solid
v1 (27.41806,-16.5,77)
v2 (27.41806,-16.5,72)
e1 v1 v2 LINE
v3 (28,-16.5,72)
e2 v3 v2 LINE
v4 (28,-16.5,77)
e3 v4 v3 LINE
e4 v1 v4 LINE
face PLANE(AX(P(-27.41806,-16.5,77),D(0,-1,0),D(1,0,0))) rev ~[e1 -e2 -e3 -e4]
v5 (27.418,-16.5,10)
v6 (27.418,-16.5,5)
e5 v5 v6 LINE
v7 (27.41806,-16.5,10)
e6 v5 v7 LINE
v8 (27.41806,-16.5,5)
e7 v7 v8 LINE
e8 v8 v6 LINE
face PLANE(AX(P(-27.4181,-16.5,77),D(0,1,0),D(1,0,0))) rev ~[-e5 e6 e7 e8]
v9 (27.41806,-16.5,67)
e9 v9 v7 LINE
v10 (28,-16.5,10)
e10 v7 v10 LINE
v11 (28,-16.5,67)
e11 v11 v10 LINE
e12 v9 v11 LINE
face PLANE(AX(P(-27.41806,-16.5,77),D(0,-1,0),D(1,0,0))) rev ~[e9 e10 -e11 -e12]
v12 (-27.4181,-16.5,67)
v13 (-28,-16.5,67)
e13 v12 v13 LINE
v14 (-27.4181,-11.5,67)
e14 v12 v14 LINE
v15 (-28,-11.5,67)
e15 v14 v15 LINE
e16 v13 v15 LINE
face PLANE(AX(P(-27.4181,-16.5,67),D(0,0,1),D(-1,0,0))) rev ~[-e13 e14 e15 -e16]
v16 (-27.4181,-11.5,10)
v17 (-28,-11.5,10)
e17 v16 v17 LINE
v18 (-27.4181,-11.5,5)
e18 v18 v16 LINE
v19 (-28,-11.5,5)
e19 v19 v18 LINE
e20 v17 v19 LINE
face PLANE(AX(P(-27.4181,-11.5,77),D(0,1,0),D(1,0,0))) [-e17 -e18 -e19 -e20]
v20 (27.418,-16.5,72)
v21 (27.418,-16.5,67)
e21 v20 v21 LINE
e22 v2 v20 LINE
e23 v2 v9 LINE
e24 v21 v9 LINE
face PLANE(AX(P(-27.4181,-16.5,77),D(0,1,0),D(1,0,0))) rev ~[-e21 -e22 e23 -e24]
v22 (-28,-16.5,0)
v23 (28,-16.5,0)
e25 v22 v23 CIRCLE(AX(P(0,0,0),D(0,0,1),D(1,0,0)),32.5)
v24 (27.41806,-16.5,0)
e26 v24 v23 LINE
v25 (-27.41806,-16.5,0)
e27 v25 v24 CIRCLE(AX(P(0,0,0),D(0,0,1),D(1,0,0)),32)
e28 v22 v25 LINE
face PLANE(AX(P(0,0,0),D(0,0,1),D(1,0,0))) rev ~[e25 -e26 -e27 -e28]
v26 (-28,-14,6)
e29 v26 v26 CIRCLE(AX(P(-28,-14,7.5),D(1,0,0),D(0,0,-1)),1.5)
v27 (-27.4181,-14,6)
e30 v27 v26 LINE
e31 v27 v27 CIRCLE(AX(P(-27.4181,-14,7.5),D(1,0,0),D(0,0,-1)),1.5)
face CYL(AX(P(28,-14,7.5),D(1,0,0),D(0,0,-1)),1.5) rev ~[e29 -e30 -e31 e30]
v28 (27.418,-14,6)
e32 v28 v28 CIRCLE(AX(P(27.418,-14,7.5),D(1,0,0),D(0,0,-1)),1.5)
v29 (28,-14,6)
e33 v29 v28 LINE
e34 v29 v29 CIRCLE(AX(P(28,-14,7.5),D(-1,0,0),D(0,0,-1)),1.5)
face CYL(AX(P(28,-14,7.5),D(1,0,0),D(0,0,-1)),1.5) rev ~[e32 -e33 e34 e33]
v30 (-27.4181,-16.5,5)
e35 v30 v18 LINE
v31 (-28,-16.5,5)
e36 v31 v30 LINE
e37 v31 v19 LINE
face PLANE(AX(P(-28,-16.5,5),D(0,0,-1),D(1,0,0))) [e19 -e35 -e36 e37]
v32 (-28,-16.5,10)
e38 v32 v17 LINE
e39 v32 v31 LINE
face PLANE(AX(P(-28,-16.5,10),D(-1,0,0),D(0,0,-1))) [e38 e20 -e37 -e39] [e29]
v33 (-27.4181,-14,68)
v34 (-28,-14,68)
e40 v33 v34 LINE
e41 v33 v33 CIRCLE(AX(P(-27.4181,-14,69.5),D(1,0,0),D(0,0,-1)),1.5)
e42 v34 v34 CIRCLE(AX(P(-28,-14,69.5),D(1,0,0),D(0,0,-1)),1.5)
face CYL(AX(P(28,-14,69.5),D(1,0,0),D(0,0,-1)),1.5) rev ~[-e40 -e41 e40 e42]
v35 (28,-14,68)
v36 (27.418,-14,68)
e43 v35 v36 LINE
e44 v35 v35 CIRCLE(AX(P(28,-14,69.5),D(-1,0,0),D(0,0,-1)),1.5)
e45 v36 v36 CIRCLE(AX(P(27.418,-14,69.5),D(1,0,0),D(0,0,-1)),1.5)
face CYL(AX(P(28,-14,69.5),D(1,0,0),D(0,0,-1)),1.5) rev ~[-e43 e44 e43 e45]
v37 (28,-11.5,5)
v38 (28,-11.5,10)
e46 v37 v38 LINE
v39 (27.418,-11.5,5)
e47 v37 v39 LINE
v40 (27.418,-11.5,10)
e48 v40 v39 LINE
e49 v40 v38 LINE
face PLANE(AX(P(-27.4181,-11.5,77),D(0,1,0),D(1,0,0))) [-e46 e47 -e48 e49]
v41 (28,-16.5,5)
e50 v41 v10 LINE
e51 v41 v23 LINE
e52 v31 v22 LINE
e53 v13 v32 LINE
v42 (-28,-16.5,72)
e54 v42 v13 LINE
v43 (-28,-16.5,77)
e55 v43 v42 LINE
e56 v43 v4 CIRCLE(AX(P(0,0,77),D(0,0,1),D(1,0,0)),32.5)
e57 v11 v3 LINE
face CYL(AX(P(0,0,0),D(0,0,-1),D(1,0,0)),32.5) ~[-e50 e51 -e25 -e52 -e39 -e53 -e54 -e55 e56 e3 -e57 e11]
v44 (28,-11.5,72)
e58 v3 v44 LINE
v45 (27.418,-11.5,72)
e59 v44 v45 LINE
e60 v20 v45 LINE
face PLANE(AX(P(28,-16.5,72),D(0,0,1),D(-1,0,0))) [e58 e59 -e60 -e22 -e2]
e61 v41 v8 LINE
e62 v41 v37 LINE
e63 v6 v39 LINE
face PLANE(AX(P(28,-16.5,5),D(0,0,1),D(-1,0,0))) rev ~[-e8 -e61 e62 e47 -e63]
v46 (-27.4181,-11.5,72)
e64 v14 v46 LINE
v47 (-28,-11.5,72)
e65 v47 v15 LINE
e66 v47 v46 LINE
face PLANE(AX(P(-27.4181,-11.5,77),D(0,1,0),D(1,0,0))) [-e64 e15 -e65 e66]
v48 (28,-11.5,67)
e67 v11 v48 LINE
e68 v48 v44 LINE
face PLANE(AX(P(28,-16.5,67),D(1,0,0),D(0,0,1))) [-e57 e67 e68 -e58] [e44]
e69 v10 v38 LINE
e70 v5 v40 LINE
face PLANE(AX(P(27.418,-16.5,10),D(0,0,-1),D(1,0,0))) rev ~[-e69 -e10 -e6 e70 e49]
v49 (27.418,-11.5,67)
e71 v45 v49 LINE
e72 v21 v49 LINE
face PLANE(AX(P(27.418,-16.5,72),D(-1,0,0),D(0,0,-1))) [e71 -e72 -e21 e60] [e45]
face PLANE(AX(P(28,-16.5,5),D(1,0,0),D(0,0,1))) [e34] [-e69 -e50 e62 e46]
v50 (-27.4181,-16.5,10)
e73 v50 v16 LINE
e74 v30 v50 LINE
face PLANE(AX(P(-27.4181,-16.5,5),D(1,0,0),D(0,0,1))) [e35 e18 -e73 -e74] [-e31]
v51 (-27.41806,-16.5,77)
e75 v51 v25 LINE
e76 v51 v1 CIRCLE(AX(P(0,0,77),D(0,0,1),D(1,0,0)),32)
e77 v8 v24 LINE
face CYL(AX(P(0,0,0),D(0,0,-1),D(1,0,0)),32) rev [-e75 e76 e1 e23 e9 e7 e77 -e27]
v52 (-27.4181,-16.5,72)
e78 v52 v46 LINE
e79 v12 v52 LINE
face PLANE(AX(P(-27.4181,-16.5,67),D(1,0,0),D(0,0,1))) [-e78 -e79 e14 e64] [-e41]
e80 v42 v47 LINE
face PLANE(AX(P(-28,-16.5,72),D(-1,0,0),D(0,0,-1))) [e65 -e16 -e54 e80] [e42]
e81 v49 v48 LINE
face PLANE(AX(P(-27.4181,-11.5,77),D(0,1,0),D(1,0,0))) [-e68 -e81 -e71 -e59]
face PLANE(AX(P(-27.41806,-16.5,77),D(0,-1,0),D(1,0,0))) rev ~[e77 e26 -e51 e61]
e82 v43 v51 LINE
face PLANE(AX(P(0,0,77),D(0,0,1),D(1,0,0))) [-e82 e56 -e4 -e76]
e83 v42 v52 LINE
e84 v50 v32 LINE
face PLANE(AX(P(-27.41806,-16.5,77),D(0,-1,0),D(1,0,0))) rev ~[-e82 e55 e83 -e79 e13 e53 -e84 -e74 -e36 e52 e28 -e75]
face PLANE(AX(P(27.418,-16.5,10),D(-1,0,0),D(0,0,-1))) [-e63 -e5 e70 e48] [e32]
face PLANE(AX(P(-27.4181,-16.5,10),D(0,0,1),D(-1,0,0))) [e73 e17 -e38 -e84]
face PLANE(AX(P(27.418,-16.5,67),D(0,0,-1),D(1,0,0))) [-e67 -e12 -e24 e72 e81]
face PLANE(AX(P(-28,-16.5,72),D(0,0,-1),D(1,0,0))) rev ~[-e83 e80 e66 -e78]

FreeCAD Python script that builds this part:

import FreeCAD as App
import Part
import Sketcher
from FreeCAD import Vector

doc = App.newDocument("Part")
params = doc.addObject("Spreadsheet::Sheet", "Params")
for row, (alias, value) in enumerate([
    ("sketch1_diameter", "65 mm"),
    ("sketch1_diameter2", "64 mm"),
    ("pad1_length", "77 mm"),
    ("sketch2_length", "29.49 mm"),
    ("sketch2_length2", "20.66 mm"),
    ("pocket1_length", "77 mm"),
    ("sketch3_height", "5 mm"),
    ("pad2_length", "5 mm"),
    ("sketch4_diameter", "3 mm"),
    ("pocket2_length", "56 mm"),
], start=1):
    params.set(f"A{row}", alias)
    params.set(f"B{row}", "=" + value)
    params.setAlias(f"B{row}", alias)

body = doc.addObject("PartDesign::Body", "Body")

# Sketch on XY plane
sketch1 = body.newObject("Sketcher::SketchObject", "Sketch")
sketch1.AttachmentSupport = (doc.getObject("XY_Plane"), [""])
sketch1.MapMode = "FlatFace"
sketch1.addGeometry(Part.Circle(Vector(0, 0, 0), Vector(0, 0, 1), 32), False)
sketch1.addGeometry(Part.Circle(Vector(0, 0, 0), Vector(0, 0, 1), 32), False)
sketch1.addConstraint(Sketcher.Constraint("Coincident", 0, 3, -1, 1))
sketch1.addConstraint(Sketcher.Constraint("Coincident", 1, 3, -1, 1))
sketch1.addConstraint(Sketcher.Constraint("Diameter", 0, 65.0))
sketch1.addConstraint(Sketcher.Constraint("Diameter", 1, 64.0))
sketch1.setExpression("Constraints[2]", "Params.sketch1_diameter")
sketch1.setExpression("Constraints[3]", "Params.sketch1_diameter2")
pad1 = body.newObject("PartDesign::Pad", "Pad")
pad1.Profile = sketch1
pad1.setExpression("Length", "Params.pad1_length")

# Sketch on XY plane
sketch2 = body.newObject("Sketcher::SketchObject", "Sketch001")
sketch2.AttachmentSupport = (doc.getObject("XY_Plane"), [""])
sketch2.MapMode = "FlatFace"
sketch2.AttachmentOffset = App.Placement(Vector(0, 0, 77), App.Rotation())
sketch2.addGeometry(Part.LineSegment(Vector(28, -16, 0), Vector(53, -1, 0)), False)
sketch2.addGeometry(Part.LineSegment(Vector(53, -1, 0), Vector(27, 45, 0)), False)
sketch2.addGeometry(Part.LineSegment(Vector(27, 45, 0), Vector(-32, 42, 0)), False)
sketch2.addGeometry(Part.LineSegment(Vector(-32, 42, 0), Vector(-49, -14, 0)), False)
sketch2.addGeometry(Part.LineSegment(Vector(-49, -14, 0), Vector(-28, -16, 0)), False)
sketch2.addGeometry(Part.LineSegment(Vector(-28, -16, 0), Vector(28, -16, 0)), False)
sketch2.addConstraint(Sketcher.Constraint("Coincident", 0, 2, 1, 1))
sketch2.addConstraint(Sketcher.Constraint("Coincident", 1, 2, 2, 1))
sketch2.addConstraint(Sketcher.Constraint("Coincident", 2, 2, 3, 1))
sketch2.addConstraint(Sketcher.Constraint("Coincident", 3, 2, 4, 1))
sketch2.addConstraint(Sketcher.Constraint("Coincident", 4, 2, 5, 1))
sketch2.addConstraint(Sketcher.Constraint("Coincident", 5, 2, 0, 1))
sketch2.addConstraint(Sketcher.Constraint("Horizontal", 5))
sketch2.addConstraint(Sketcher.Constraint("DistanceX", 4, 2, -1, 1, 28.0))
sketch2.addConstraint(Sketcher.Constraint("DistanceX", -1, 1, 5, 2, 28.0))
sketch2.addConstraint(Sketcher.Constraint("DistanceY", 4, 2, -1, 1, 16.5))
sketch2.addConstraint(Sketcher.Constraint("Distance", 0, 29.49))
sketch2.addConstraint(Sketcher.Constraint("Distance", 4, 20.66))
sketch2.addConstraint(Sketcher.Constraint("DistanceX", -1, 1, 1, 2, 26.703))
sketch2.addConstraint(Sketcher.Constraint("DistanceY", -1, 1, 2, 2, 42.367))
sketch2.addConstraint(Sketcher.Constraint("DistanceX", 3, 2, 2, 2, 16.797))
sketch2.addConstraint(Sketcher.Constraint("DistanceY", 3, 2, 1, 2, 58.961))
sketch2.addConstraint(Sketcher.Constraint("Distance", 1, 52.6383))
sketch2.addConstraint(Sketcher.Constraint("Distance", 2, 58.4708))
sketch2.setExpression("Constraints[10]", "Params.sketch2_length")
sketch2.setExpression("Constraints[11]", "Params.sketch2_length2")
pocket1 = body.newObject("PartDesign::Pocket", "Pocket")
pocket1.Profile = sketch2
pocket1.setExpression("Length", "Params.pocket1_length")

# Sketch on XZ plane
sketch3 = body.newObject("Sketcher::SketchObject", "Sketch002")
sketch3.AttachmentSupport = (doc.getObject("XZ_Plane"), [""])
sketch3.MapMode = "FlatFace"
sketch3.AttachmentOffset = App.Placement(Vector(0, 0, 16.5), App.Rotation())
sketch3.addGeometry(Part.LineSegment(Vector(-28, 67, 0), Vector(-28, 72, 0)), False)
sketch3.addGeometry(Part.LineSegment(Vector(-28, 72, 0), Vector(-27.4, 72, 0)), False)
sketch3.addGeometry(Part.LineSegment(Vector(-27.4, 72, 0), Vector(-27.4, 67, 0)), False)
sketch3.addGeometry(Part.LineSegment(Vector(-27.4, 67, 0), Vector(-28, 67, 0)), False)
sketch3.addGeometry(Part.LineSegment(Vector(27.4, 67, 0), Vector(27.4, 72, 0)), False)
sketch3.addGeometry(Part.LineSegment(Vector(27.4, 72, 0), Vector(28, 72, 0)), False)
sketch3.addGeometry(Part.LineSegment(Vector(28, 72, 0), Vector(28, 67, 0)), False)
sketch3.addGeometry(Part.LineSegment(Vector(28, 67, 0), Vector(27.4, 67, 0)), False)
sketch3.addGeometry(Part.LineSegment(Vector(-28, 5, 0), Vector(-28, 10, 0)), False)
sketch3.addGeometry(Part.LineSegment(Vector(-28, 10, 0), Vector(-27.4, 10, 0)), False)
sketch3.addGeometry(Part.LineSegment(Vector(-27.4, 10, 0), Vector(-27.4, 5, 0)), False)
sketch3.addGeometry(Part.LineSegment(Vector(-27.4, 5, 0), Vector(-28, 5, 0)), False)
sketch3.addGeometry(Part.LineSegment(Vector(27.4, 5, 0), Vector(27.4, 10, 0)), False)
sketch3.addGeometry(Part.LineSegment(Vector(27.4, 10, 0), Vector(28, 10, 0)), False)
sketch3.addGeometry(Part.LineSegment(Vector(28, 10, 0), Vector(28, 5, 0)), False)
sketch3.addGeometry(Part.LineSegment(Vector(28, 5, 0), Vector(27.4, 5, 0)), False)
sketch3.addConstraint(Sketcher.Constraint("Coincident", 0, 2, 1, 1))
sketch3.addConstraint(Sketcher.Constraint("Coincident", 1, 2, 2, 1))
sketch3.addConstraint(Sketcher.Constraint("Coincident", 2, 2, 3, 1))
sketch3.addConstraint(Sketcher.Constraint("Coincident", 3, 2, 0, 1))
sketch3.addConstraint(Sketcher.Constraint("Coincident", 4, 2, 5, 1))
sketch3.addConstraint(Sketcher.Constraint("Coincident", 5, 2, 6, 1))
sketch3.addConstraint(Sketcher.Constraint("Coincident", 6, 2, 7, 1))
sketch3.addConstraint(Sketcher.Constraint("Coincident", 7, 2, 4, 1))
sketch3.addConstraint(Sketcher.Constraint("Coincident", 8, 2, 9, 1))
sketch3.addConstraint(Sketcher.Constraint("Coincident", 9, 2, 10, 1))
sketch3.addConstraint(Sketcher.Constraint("Coincident", 10, 2, 11, 1))
sketch3.addConstraint(Sketcher.Constraint("Coincident", 11, 2, 8, 1))
sketch3.addConstraint(Sketcher.Constraint("Coincident", 12, 2, 13, 1))
sketch3.addConstraint(Sketcher.Constraint("Coincident", 13, 2, 14, 1))
sketch3.addConstraint(Sketcher.Constraint("Coincident", 14, 2, 15, 1))
sketch3.addConstraint(Sketcher.Constraint("Coincident", 15, 2, 12, 1))
sketch3.addConstraint(Sketcher.Constraint("Vertical", 0))
sketch3.addConstraint(Sketcher.Constraint("Horizontal", 1))
sketch3.addConstraint(Sketcher.Constraint("Vertical", 2))
sketch3.addConstraint(Sketcher.Constraint("Horizontal", 3))
sketch3.addConstraint(Sketcher.Constraint("Vertical", 4))
sketch3.addConstraint(Sketcher.Constraint("Horizontal", 5))
sketch3.addConstraint(Sketcher.Constraint("Vertical", 6))
sketch3.addConstraint(Sketcher.Constraint("Horizontal", 7))
sketch3.addConstraint(Sketcher.Constraint("Vertical", 8))
sketch3.addConstraint(Sketcher.Constraint("Horizontal", 9))
sketch3.addConstraint(Sketcher.Constraint("Vertical", 10))
sketch3.addConstraint(Sketcher.Constraint("Horizontal", 11))
sketch3.addConstraint(Sketcher.Constraint("Vertical", 12))
sketch3.addConstraint(Sketcher.Constraint("Horizontal", 13))
sketch3.addConstraint(Sketcher.Constraint("Vertical", 14))
sketch3.addConstraint(Sketcher.Constraint("Horizontal", 15))
sketch3.addConstraint(Sketcher.Constraint("Symmetric", 1, 2, 4, 2, -2))
sketch3.addConstraint(Sketcher.Constraint("Symmetric", 3, 2, 6, 2, -2))
sketch3.addConstraint(Sketcher.Constraint("Symmetric", 9, 2, 12, 2, -2))
sketch3.addConstraint(Sketcher.Constraint("Symmetric", 11, 2, 14, 2, -2))
sketch3.addConstraint(Sketcher.Constraint("Vertical", 3, 2, 8, 2))
sketch3.addConstraint(Sketcher.Constraint("Vertical", 2, 2, 9, 2))
sketch3.addConstraint(Sketcher.Constraint("Equal", 6, 8))
sketch3.addConstraint(Sketcher.Constraint("DistanceY", 0, 1, 0, 2, 5.0))
sketch3.addConstraint(Sketcher.Constraint("DistanceY", -1, 1, 10, 2, 5.0))
sketch3.addConstraint(Sketcher.Constraint("DistanceX", 0, 2, -1, 1, 28.0))
sketch3.addConstraint(Sketcher.Constraint("DistanceY", -1, 1, 0, 2, 72.0))
sketch3.addConstraint(Sketcher.Constraint("DistanceX", 1, 1, 1, 2, 0.582))
sketch3.setExpression("Constraints[39]", "Params.sketch3_height")
pad2 = body.newObject("PartDesign::Pad", "Pad001")
pad2.Profile = sketch3
pad2.setExpression("Length", "Params.pad2_length")
pad2.Reversed = True

# Sketch on YZ plane
sketch4 = body.newObject("Sketcher::SketchObject", "Sketch003")
sketch4.AttachmentSupport = (doc.getObject("YZ_Plane"), [""])
sketch4.MapMode = "FlatFace"
sketch4.AttachmentOffset = App.Placement(Vector(0, 0, 28), App.Rotation())
sketch4.addGeometry(Part.Circle(Vector(-14, 7.5, 0), Vector(0, 0, 1), 1.5), False)
sketch4.addGeometry(Part.Circle(Vector(-14, 69.5, 0), Vector(0, 0, 1), 1.5), False)
sketch4.addConstraint(Sketcher.Constraint("Equal", 0, 1))
sketch4.addConstraint(Sketcher.Constraint("Vertical", 0, 3, 1, 3))
sketch4.addConstraint(Sketcher.Constraint("Diameter", 0, 3.0))
sketch4.addConstraint(Sketcher.Constraint("DistanceX", 0, 3, -1, 1, 14.0))
sketch4.addConstraint(Sketcher.Constraint("DistanceY", 0, 3, 1, 3, 62.0))
sketch4.addConstraint(Sketcher.Constraint("DistanceY", -1, 1, 0, 3, 7.5))
sketch4.setExpression("Constraints[2]", "Params.sketch4_diameter")
pocket2 = body.newObject("PartDesign::Pocket", "Pocket001")
pocket2.Profile = sketch4
pocket2.setExpression("Length", "Params.pocket2_length")

doc.recompute()
